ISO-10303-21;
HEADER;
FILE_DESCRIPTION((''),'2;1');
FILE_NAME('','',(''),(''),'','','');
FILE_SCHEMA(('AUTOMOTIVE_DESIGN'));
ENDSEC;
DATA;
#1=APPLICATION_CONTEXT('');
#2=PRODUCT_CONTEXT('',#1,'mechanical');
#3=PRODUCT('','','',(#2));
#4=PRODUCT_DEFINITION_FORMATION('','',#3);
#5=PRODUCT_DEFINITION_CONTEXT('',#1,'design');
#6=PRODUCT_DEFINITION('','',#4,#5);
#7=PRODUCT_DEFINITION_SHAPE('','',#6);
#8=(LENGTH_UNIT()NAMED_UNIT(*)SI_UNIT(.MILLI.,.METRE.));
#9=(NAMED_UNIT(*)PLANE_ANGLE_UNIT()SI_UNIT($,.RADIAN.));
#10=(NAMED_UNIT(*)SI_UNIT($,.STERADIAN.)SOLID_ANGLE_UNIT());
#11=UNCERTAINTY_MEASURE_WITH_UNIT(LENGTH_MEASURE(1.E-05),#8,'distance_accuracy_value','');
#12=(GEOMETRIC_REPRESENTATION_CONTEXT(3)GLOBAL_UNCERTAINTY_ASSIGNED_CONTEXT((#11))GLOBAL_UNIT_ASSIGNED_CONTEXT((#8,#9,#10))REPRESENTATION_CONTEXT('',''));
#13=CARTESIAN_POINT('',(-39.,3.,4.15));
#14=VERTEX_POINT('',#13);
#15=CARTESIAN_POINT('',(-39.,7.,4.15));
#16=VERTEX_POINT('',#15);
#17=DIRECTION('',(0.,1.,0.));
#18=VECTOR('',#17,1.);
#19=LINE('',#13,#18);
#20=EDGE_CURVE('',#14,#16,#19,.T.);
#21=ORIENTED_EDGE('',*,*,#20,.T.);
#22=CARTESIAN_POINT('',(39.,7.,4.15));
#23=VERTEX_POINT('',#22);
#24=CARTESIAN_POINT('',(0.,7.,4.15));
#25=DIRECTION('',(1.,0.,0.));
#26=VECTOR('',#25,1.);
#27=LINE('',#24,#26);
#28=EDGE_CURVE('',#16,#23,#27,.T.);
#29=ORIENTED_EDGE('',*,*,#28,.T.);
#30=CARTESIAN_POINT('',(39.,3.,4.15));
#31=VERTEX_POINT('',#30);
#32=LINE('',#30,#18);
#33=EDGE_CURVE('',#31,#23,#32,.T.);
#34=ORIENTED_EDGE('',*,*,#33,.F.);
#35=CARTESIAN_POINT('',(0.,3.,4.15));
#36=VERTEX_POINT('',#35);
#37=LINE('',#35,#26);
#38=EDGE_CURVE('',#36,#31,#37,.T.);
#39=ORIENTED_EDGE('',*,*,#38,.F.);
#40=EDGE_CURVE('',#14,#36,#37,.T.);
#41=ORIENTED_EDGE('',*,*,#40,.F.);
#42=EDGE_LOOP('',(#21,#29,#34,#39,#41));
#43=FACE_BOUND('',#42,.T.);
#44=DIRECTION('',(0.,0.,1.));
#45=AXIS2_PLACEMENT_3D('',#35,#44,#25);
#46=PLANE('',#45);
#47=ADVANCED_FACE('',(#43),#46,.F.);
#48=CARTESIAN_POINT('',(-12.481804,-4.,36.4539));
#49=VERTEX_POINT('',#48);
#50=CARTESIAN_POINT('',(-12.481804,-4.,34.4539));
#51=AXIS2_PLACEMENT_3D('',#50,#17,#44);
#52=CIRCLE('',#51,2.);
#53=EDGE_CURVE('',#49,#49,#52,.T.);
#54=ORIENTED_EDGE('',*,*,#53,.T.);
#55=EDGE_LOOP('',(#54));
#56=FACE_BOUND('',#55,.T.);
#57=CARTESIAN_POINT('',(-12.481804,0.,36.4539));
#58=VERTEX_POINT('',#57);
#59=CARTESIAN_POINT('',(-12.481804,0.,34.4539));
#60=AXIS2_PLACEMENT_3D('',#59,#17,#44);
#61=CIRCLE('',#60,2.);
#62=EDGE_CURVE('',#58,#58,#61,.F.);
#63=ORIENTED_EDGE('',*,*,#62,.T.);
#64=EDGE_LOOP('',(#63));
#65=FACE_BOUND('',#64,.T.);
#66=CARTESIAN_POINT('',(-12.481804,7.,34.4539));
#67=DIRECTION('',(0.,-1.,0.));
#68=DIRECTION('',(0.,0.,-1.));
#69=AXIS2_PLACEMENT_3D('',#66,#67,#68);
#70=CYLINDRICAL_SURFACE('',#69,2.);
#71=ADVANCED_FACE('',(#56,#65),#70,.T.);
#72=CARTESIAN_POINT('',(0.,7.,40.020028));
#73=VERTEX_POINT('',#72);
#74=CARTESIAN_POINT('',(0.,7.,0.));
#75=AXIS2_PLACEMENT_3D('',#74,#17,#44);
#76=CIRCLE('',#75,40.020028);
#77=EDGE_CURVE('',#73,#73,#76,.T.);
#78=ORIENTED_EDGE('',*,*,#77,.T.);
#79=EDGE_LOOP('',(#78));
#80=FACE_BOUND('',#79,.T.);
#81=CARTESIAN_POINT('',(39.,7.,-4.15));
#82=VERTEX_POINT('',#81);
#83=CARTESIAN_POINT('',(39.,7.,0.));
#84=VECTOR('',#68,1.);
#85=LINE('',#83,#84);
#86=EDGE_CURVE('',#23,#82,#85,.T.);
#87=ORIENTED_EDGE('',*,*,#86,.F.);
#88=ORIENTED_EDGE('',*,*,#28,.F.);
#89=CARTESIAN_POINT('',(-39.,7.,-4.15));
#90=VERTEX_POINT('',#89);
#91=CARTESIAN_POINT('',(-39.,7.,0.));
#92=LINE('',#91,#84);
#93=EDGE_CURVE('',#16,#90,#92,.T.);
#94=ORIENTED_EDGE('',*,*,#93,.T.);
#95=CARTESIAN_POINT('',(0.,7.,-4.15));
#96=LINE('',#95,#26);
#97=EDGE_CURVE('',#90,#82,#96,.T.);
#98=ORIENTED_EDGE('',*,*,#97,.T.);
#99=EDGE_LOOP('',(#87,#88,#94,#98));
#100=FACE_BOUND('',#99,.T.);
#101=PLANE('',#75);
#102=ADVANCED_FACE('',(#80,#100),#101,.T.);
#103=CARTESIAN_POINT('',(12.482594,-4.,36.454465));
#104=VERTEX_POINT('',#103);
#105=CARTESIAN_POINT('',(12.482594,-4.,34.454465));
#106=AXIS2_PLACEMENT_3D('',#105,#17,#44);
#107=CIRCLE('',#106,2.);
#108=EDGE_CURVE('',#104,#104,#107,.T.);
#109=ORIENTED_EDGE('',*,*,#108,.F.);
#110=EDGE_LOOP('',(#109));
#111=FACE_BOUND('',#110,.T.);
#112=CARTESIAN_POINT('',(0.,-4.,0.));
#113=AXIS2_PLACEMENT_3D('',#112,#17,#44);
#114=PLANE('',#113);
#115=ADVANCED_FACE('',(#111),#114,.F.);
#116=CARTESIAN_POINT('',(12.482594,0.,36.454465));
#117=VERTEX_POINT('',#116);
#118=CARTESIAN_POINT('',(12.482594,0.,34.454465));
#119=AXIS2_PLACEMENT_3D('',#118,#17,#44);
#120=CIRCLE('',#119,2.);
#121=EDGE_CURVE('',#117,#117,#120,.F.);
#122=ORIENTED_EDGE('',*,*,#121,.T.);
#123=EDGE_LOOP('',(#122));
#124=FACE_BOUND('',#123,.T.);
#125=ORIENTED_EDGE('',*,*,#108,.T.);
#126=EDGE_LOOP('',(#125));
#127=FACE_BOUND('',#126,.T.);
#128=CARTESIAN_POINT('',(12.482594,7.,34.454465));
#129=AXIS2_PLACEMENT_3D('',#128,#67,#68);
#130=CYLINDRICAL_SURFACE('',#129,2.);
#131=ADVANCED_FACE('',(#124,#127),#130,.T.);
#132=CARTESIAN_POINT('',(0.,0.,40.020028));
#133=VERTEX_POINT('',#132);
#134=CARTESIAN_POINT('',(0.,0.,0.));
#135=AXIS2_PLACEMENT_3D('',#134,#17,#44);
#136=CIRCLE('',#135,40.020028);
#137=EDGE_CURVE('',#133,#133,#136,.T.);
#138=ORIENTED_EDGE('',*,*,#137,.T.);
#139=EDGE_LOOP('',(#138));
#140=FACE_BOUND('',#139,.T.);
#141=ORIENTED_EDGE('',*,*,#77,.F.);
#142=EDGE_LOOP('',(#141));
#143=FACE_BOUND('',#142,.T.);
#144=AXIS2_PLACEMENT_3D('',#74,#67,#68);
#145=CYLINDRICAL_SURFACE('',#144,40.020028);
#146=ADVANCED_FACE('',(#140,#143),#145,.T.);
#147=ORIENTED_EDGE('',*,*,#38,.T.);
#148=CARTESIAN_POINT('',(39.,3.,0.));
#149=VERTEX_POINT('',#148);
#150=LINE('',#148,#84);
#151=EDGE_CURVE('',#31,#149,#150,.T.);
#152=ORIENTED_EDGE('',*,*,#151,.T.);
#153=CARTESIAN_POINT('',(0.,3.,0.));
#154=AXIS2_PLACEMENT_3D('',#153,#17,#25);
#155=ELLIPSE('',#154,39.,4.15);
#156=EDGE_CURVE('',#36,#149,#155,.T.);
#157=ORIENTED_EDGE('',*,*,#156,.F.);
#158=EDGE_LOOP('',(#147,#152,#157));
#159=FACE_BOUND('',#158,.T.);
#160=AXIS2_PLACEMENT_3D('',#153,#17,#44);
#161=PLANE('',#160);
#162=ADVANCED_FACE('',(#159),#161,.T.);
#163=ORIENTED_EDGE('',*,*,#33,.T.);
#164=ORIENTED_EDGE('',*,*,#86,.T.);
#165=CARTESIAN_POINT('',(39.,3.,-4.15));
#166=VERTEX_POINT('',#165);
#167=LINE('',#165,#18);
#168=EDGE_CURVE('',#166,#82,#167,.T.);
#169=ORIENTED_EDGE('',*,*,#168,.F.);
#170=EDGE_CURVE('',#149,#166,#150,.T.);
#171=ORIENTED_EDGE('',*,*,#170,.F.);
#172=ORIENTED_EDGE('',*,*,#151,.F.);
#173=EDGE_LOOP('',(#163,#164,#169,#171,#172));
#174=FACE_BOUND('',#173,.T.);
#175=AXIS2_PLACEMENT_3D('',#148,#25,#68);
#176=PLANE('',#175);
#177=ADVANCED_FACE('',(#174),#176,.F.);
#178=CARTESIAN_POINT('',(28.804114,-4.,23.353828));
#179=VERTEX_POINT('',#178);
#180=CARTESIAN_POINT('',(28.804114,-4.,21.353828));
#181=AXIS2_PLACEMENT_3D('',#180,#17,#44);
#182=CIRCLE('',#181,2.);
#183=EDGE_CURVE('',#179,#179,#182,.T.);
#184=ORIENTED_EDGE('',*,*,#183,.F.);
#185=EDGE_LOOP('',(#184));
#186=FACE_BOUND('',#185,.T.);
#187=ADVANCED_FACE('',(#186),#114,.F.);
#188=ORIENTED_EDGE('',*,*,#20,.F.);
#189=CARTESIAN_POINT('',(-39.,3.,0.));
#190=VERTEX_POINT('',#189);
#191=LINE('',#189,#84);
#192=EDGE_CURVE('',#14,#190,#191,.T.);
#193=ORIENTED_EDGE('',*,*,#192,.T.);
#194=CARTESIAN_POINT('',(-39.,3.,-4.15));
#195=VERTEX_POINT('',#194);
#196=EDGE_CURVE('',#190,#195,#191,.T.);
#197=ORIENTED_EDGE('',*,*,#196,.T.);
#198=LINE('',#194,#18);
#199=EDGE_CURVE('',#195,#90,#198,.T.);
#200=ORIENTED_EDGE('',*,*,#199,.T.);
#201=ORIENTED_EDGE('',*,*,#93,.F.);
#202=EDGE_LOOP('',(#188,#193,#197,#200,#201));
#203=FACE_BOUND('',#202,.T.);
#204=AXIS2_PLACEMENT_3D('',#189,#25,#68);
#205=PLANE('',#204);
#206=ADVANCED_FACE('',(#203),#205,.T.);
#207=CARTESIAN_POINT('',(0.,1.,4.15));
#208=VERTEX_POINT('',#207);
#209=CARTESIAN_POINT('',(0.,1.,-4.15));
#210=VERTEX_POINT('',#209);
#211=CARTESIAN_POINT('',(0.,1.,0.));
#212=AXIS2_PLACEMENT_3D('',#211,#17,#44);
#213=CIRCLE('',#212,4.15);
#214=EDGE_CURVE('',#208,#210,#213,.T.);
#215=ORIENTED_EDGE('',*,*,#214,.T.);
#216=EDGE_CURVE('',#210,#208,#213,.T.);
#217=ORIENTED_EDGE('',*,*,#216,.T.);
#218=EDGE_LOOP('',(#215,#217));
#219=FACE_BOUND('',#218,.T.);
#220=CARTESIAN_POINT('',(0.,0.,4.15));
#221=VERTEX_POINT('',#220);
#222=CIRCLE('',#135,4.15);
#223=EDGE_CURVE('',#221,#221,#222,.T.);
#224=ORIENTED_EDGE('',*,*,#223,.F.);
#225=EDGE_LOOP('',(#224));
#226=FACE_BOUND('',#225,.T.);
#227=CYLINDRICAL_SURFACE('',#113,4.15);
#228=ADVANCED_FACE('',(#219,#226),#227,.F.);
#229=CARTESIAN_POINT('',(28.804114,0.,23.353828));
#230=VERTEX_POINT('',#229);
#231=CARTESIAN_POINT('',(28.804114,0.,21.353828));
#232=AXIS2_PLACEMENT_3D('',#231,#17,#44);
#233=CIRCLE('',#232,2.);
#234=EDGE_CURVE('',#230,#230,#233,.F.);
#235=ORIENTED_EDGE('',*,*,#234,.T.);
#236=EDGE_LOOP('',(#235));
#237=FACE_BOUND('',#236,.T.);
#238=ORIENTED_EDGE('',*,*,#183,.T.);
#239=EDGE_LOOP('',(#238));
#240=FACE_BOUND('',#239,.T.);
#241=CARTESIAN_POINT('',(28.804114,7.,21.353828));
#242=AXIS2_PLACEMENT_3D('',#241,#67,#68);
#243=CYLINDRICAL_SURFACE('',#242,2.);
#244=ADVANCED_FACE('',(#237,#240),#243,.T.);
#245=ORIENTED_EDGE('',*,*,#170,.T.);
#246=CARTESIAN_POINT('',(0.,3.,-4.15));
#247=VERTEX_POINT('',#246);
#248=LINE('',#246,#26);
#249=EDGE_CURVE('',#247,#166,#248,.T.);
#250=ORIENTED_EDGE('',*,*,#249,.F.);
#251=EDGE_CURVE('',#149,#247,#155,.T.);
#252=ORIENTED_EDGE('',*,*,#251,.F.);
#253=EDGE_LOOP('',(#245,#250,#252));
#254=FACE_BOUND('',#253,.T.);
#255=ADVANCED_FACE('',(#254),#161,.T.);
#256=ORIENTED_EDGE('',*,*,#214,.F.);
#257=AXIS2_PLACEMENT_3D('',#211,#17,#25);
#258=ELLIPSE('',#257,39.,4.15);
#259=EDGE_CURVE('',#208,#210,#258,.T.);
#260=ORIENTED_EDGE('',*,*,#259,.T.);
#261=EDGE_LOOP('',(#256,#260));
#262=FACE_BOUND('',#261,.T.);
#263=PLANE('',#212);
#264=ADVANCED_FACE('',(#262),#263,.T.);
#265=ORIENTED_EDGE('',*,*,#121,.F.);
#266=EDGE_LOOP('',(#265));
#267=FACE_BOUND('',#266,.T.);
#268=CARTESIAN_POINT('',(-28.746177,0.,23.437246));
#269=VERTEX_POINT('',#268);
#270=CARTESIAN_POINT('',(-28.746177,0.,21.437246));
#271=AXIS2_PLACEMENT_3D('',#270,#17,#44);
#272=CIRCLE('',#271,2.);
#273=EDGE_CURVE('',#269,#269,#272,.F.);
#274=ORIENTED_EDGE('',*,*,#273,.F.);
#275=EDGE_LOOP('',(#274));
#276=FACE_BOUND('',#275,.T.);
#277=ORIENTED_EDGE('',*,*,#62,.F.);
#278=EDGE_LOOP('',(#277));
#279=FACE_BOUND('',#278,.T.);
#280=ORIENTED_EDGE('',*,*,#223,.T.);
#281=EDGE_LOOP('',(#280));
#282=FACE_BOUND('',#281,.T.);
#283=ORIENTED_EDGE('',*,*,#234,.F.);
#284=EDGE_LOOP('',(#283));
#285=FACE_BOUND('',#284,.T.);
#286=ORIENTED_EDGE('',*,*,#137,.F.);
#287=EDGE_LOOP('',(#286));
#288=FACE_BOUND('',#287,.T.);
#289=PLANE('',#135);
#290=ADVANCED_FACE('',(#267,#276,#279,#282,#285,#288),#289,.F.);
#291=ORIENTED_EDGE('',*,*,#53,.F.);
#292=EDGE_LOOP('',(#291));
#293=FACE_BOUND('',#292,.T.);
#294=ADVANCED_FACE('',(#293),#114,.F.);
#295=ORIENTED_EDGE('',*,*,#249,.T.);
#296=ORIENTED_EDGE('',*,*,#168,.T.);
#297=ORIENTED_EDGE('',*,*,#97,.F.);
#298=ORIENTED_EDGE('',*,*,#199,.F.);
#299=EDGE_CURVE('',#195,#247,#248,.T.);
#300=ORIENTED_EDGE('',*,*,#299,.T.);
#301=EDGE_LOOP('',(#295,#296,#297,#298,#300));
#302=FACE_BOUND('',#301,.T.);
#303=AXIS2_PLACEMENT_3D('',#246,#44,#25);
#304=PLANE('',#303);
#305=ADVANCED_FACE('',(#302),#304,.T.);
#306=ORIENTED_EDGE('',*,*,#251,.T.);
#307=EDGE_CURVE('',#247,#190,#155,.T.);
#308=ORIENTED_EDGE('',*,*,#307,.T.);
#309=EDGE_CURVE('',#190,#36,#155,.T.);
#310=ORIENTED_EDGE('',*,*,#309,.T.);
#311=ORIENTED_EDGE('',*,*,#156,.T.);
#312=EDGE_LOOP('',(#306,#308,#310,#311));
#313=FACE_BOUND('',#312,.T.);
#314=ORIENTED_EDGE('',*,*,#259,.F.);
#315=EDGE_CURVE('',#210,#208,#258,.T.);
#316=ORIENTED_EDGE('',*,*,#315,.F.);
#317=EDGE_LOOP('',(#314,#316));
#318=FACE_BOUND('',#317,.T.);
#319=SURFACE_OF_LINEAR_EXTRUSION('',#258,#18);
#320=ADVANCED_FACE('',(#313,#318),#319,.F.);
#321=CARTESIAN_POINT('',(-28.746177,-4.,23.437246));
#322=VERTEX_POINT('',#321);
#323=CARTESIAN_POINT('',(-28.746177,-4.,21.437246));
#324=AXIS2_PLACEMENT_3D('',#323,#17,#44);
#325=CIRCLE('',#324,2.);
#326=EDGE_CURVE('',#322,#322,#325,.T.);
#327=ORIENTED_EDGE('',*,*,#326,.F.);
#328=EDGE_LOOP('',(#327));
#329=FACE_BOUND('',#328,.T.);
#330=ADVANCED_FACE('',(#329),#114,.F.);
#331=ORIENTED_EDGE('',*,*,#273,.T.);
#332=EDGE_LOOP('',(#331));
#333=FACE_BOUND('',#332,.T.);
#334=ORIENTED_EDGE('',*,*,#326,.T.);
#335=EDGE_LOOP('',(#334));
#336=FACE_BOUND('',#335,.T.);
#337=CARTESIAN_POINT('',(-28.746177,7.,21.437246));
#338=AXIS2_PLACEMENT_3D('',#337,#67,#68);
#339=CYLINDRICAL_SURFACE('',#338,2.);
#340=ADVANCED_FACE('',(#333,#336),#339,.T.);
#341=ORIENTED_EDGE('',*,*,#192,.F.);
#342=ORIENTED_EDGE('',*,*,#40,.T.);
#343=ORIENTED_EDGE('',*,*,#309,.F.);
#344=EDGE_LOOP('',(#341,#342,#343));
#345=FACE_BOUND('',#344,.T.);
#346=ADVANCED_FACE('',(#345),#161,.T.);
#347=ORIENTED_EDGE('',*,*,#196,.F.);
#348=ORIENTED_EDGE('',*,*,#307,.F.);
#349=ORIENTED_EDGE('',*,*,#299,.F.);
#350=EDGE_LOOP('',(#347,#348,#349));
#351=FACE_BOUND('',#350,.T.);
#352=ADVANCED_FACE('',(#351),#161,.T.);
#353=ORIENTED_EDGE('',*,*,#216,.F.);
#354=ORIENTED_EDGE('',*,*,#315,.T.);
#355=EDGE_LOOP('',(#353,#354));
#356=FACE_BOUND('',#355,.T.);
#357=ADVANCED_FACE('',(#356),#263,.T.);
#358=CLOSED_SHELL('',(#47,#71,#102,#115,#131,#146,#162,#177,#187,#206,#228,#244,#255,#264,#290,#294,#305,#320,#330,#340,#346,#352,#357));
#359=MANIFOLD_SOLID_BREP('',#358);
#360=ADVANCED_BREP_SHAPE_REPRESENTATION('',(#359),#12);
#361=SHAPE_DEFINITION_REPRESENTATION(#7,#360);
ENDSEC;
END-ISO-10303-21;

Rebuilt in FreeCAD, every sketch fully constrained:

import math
import FreeCAD as App
import Part
import Sketcher
from FreeCAD import Vector

doc = App.newDocument("Part")
body = doc.addObject("PartDesign::Body", "Body")

sketch1 = body.newObject("Sketcher::SketchObject", "Sketch")
sketch1.AttachmentSupport = (doc.getObject("XZ_Plane"), [""])
sketch1.MapMode = "FlatFace"
sketch1.addGeometry(Part.Circle(Vector(0, 0, 0), Vector(0, 0, 1), 40.020028), False)
sketch1.addGeometry(Part.Circle(Vector(-28.746177, 21.437246, 0), Vector(0, 0, 1), 2), False)
sketch1.addGeometry(Part.Circle(Vector(-12.481804, 34.4539, 0), Vector(0, 0, 1), 2), False)
sketch1.addGeometry(Part.Circle(Vector(28.804114, 21.353828, 0), Vector(0, 0, 1), 2), False)
sketch1.addGeometry(Part.Circle(Vector(12.482594, 34.454465, 0), Vector(0, 0, 1), 2), False)
sketch1.addConstraint(Sketcher.Constraint("Coincident", 0, 3, -1, 1))
sketch1.addConstraint(Sketcher.Constraint("Equal", 1, 2))
sketch1.addConstraint(Sketcher.Constraint("Equal", 2, 3))
sketch1.addConstraint(Sketcher.Constraint("Equal", 3, 4))
sketch1.addConstraint(Sketcher.Constraint("Diameter", 1, 4.0))
sketch1.addConstraint(Sketcher.Constraint("Diameter", 0, 80.040056))
sketch1.addConstraint(Sketcher.Constraint("DistanceY", -1, 1, 2, 3, 34.4539))
sketch1.addConstraint(Sketcher.Constraint("DistanceX", 2, 3, 4, 3, 24.964398))
sketch1.addConstraint(Sketcher.Constraint("DistanceY", -1, 1, 3, 3, 21.353828))
sketch1.addConstraint(Sketcher.Constraint("DistanceX", 1, 3, 3, 3, 57.55029))
sketch1.addConstraint(Sketcher.Constraint("DistanceX", 4, 3, 3, 3, 16.321519))
sketch1.addConstraint(Sketcher.Constraint("DistanceY", 1, 3, 4, 3, 13.017219))
sketch1.addConstraint(Sketcher.Constraint("DistanceX", 1, 3, -1, 1, 28.746177))
sketch1.addConstraint(Sketcher.Constraint("DistanceY", -1, 1, 1, 3, 21.437246))
pad1 = body.newObject("PartDesign::Pad", "Pad")
pad1.Profile = sketch1
pad1.Length = 7
pad1.Reversed = True

sketch2 = body.newObject("Sketcher::SketchObject", "Sketch001")
sketch2.AttachmentSupport = (doc.getObject("XZ_Plane"), [""])
sketch2.MapMode = "FlatFace"
sketch2.addGeometry(Part.ArcOfCircle(Part.Circle(Vector(-28.746177, 21.437246, 0), Vector(0, 0, 1), 2), math.radians(-122.151573), math.radians(0)), False)
sketch2.addGeometry(Part.ArcOfCircle(Part.Circle(Vector(-28.746177, 21.437246, 0), Vector(0, 0, 1), 2), math.radians(54.535827), math.radians(237.848427)), False)
sketch2.addGeometry(Part.ArcOfCircle(Part.Circle(Vector(-28.746177, 21.437246, 0), Vector(0, 0, 1), 2), math.radians(0), math.radians(54.535827)), False)
sketch2.addGeometry(Part.ArcOfCircle(Part.Circle(Vector(-12.481804, 34.4539, 0), Vector(0, 0, 1), 2), math.radians(-157.194067), math.radians(0)), False)
sketch2.addGeometry(Part.ArcOfCircle(Part.Circle(Vector(-12.481804, 34.4539, 0), Vector(0, 0, 1), 2), math.radians(19.493334), math.radians(202.805933)), False)
sketch2.addGeometry(Part.ArcOfCircle(Part.Circle(Vector(-12.481804, 34.4539, 0), Vector(0, 0, 1), 2), math.radians(0), math.radians(19.493334)), False)
sketch2.addGeometry(Part.ArcOfCircle(Part.Circle(Vector(12.482594, 34.454465, 0), Vector(0, 0, 1), 2), math.radians(160.509262), math.radians(337.196662)), False)
sketch2.addGeometry(Part.ArcOfCircle(Part.Circle(Vector(12.482594, 34.454465, 0), Vector(0, 0, 1), 2), math.radians(0), math.radians(160.509262)), False)
sketch2.addGeometry(Part.ArcOfCircle(Part.Circle(Vector(12.482594, 34.454465, 0), Vector(0, 0, 1), 2), math.radians(-22.803338), math.radians(0)), False)
sketch2.addGeometry(Part.ArcOfCircle(Part.Circle(Vector(28.804114, 21.353828, 0), Vector(0, 0, 1), 2), math.radians(125.298075), math.radians(301.985475)), False)
sketch2.addGeometry(Part.ArcOfCircle(Part.Circle(Vector(28.804114, 21.353828, 0), Vector(0, 0, 1), 2), math.radians(0), math.radians(125.298075)), False)
sketch2.addGeometry(Part.ArcOfCircle(Part.Circle(Vector(28.804114, 21.353828, 0), Vector(0, 0, 1), 2), math.radians(-58.014525), math.radians(0)), False)
sketch2.addConstraint(Sketcher.Constraint("Tangent", 0, 1, 1, 2))
sketch2.addConstraint(Sketcher.Constraint("Tangent", 1, 1, 2, 2))
sketch2.addConstraint(Sketcher.Constraint("Tangent", 2, 1, 0, 2))
sketch2.addConstraint(Sketcher.Constraint("Tangent", 3, 1, 4, 2))
sketch2.addConstraint(Sketcher.Constraint("Tangent", 4, 1, 5, 2))
sketch2.addConstraint(Sketcher.Constraint("Tangent", 5, 1, 3, 2))
sketch2.addConstraint(Sketcher.Constraint("Tangent", 6, 1, 7, 2))
sketch2.addConstraint(Sketcher.Constraint("Tangent", 7, 1, 8, 2))
sketch2.addConstraint(Sketcher.Constraint("Tangent", 8, 1, 6, 2))
sketch2.addConstraint(Sketcher.Constraint("Tangent", 9, 1, 10, 2))
sketch2.addConstraint(Sketcher.Constraint("Tangent", 10, 1, 11, 2))
sketch2.addConstraint(Sketcher.Constraint("Tangent", 11, 1, 9, 2))
sketch2.addConstraint(Sketcher.Constraint("Equal", 2, 3))
sketch2.addConstraint(Sketcher.Constraint("Equal", 5, 6))
sketch2.addConstraint(Sketcher.Constraint("Equal", 8, 9))
sketch2.addConstraint(Sketcher.Constraint("Horizontal", 1, 3, 2, 1))
sketch2.addConstraint(Sketcher.Constraint("Horizontal", 4, 3, 5, 1))
sketch2.addConstraint(Sketcher.Constraint("Horizontal", 8, 3, 7, 1))
sketch2.addConstraint(Sketcher.Constraint("Horizontal", 11, 3, 10, 1))
sketch2.addConstraint(Sketcher.Constraint("Radius", 0, 2.0))
sketch2.addConstraint(Sketcher.Constraint("DistanceY", -1, 1, 3, 3, 34.4539))
sketch2.addConstraint(Sketcher.Constraint("DistanceX", 0, 1, -1, 1, 29.810498))
sketch2.addConstraint(Sketcher.Constraint("DistanceX", 5, 3, 6, 3, 24.964398))
sketch2.addConstraint(Sketcher.Constraint("DistanceY", 10, 1, 8, 1, 12.325498))
sketch2.addConstraint(Sketcher.Constraint("DistanceY", -1, 1, 9, 3, 21.353828))
sketch2.addConstraint(Sketcher.Constraint("DistanceY", -1, 1, 0, 1, 19.74396))
sketch2.addConstraint(Sketcher.Constraint("DistanceX", 1, 1, -1, 1, 27.585789))
sketch2.addConstraint(Sketcher.Constraint("DistanceX", 3, 1, -1, 1, 14.32545))
sketch2.addConstraint(Sketcher.Constraint("DistanceX", 2, 3, 6, 3, 41.228771))
sketch2.addConstraint(Sketcher.Constraint("DistanceY", 2, 3, 6, 3, 13.017219))
sketch2.addConstraint(Sketcher.Constraint("DistanceX", 8, 3, 9, 3, 16.321519))
sketch2.addConstraint(Sketcher.Constraint("DistanceX", 0, 1, 1, 3, 1.064322))
sketch2.addConstraint(Sketcher.Constraint("DistanceX", 5, 3, 4, 1, 1.885361))
sketch2.addConstraint(Sketcher.Constraint("DistanceX", 6, 1, 6, 3, 1.885391))
sketch2.addConstraint(Sketcher.Constraint("DistanceX", 9, 1, 9, 3, 1.15566))
sketch2.addConstraint(Sketcher.Constraint("DistanceX", 11, 1, 10, 1, 0.940591))
pad2 = body.newObject("PartDesign::Pad", "Pad001")
pad2.Profile = sketch2
pad2.Type = "TwoLengths"
pad2.Length = 7
pad2.Length2 = 4
pad2.Reversed = True

sketch3 = body.newObject("Sketcher::SketchObject", "Sketch002")
sketch3.AttachmentSupport = (doc.getObject("XZ_Plane"), [""])
sketch3.MapMode = "FlatFace"
sketch3.AttachmentOffset = App.Placement(Vector(0, 0, -7), App.Rotation())
sketch3.addGeometry(Part.LineSegment(Vector(-39, 4.15, 0), Vector(39, 4.15, 0)), False)
sketch3.addGeometry(Part.LineSegment(Vector(39, 4.15, 0), Vector(39, -4.15, 0)), False)
sketch3.addGeometry(Part.LineSegment(Vector(39, -4.15, 0), Vector(-39, -4.15, 0)), False)
sketch3.addGeometry(Part.LineSegment(Vector(-39, -4.15, 0), Vector(-39, 4.15, 0)), False)
sketch3.addConstraint(Sketcher.Constraint("Coincident", 0, 2, 1, 1))
sketch3.addConstraint(Sketcher.Constraint("Coincident", 1, 2, 2, 1))
sketch3.addConstraint(Sketcher.Constraint("Coincident", 2, 2, 3, 1))
sketch3.addConstraint(Sketcher.Constraint("Coincident", 3, 2, 0, 1))
sketch3.addConstraint(Sketcher.Constraint("Horizontal", 0))
sketch3.addConstraint(Sketcher.Constraint("Vertical", 1))
sketch3.addConstraint(Sketcher.Constraint("Horizontal", 2))
sketch3.addConstraint(Sketcher.Constraint("Vertical", 3))
sketch3.addConstraint(Sketcher.Constraint("Symmetric", 0, 2, 2, 2, -1, 1))
sketch3.addConstraint(Sketcher.Constraint("DistanceX", 0, 1, 0, 2, 78.0))
sketch3.addConstraint(Sketcher.Constraint("DistanceY", 1, 2, 1, 1, 8.3))
pocket1 = body.newObject("PartDesign::Pocket", "Pocket")
pocket1.Profile = sketch3
pocket1.Length = 4
pocket1.Reversed = True

sketch4 = body.newObject("Sketcher::SketchObject", "Sketch003")
sketch4.AttachmentSupport = (doc.getObject("XZ_Plane"), [""])
sketch4.MapMode = "FlatFace"
sketch4.AttachmentOffset = App.Placement(Vector(0, 0, -3), App.Rotation())
sketch4.addGeometry(Part.Ellipse(Vector(39, 0, 0), Vector(0, 4.15, 0), Vector(0, 0, 0)), False)
sketch4.addConstraint(Sketcher.Constraint("Block", 0))
pocket2 = body.newObject("PartDesign::Pocket", "Pocket001")
pocket2.Profile = sketch4
pocket2.Length = 2
pocket2.Reversed = True

sketch5 = body.newObject("Sketcher::SketchObject", "Sketch004")
sketch5.AttachmentSupport = (doc.getObject("XZ_Plane"), [""])
sketch5.MapMode = "FlatFace"
sketch5.AttachmentOffset = App.Placement(Vector(0, 0, -1), App.Rotation())
sketch5.addGeometry(Part.Circle(Vector(0, 0, 0), Vector(0, 0, 1), 4.15), False)
sketch5.addConstraint(Sketcher.Constraint("Coincident", 0, 3, -1, 1))
sketch5.addConstraint(Sketcher.Constraint("Diameter", 0, 8.3))
pocket3 = body.newObject("PartDesign::Pocket", "Pocket002")
pocket3.Profile = sketch5
pocket3.Type = "ThroughAll"
pocket3.Reversed = True

doc.recompute()
